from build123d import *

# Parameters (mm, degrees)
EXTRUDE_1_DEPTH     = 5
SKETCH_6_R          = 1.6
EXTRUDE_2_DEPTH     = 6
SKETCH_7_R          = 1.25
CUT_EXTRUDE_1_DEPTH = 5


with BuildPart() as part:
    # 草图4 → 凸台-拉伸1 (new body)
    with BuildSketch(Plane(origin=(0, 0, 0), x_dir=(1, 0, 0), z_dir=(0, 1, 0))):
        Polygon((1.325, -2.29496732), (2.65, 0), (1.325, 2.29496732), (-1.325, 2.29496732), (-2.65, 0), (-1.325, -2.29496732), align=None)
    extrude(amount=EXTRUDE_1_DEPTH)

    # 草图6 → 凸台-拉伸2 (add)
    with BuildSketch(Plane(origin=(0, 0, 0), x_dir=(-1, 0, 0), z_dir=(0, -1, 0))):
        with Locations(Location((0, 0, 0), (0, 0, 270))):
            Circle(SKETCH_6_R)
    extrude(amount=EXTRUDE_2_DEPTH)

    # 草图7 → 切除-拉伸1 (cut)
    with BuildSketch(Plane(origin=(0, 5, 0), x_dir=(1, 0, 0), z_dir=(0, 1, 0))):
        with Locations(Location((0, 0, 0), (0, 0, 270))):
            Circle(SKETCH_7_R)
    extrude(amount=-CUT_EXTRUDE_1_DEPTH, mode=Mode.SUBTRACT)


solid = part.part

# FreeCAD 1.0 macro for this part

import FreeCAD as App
import Part
import Sketcher
from FreeCAD import Vector
Q = App.Units.Quantity


def add_polygon(sketch, points):
    """Adds a closed chain of lines whose ends are joined by coincident constraints."""
    first, n = sketch.GeometryCount, len(points)
    for a, b in zip(points, points[1:] + points[:1]):
        sketch.addGeometry(Part.LineSegment(App.Vector(*a, 0), App.Vector(*b, 0)), False)
    for i in range(n):
        sketch.addConstraint(Sketcher.Constraint("Coincident", first + i, 2, first + (i + 1) % n, 1))

doc = App.newDocument("Part")
body = doc.addObject("PartDesign::Body", "Body")

sketch1 = body.newObject("Sketcher::SketchObject", "Sketch")
sketch1.AttachmentSupport = (doc.getObject("XZ_Plane"), [""])
sketch1.MapMode = "FlatFace"
add_polygon(sketch1, [(1.3, 2.3), (2.6, 0), (1.3, -2.3), (-1.3, -2.3), (-2.6, 0), (-1.3, 2.3)])
sketch1.addConstraint(Sketcher.Constraint("Horizontal", 2))
sketch1.addConstraint(Sketcher.Constraint("Horizontal", 5))
sketch1.addConstraint(Sketcher.Constraint("Symmetric", 0, 2, 3, 2, -1, 1))
sketch1.addConstraint(Sketcher.Constraint("Symmetric", 1, 2, 4, 2, -1, 1))
sketch1.addConstraint(Sketcher.Constraint("PointOnObject", 0, 2, -1))
sketch1.addConstraint(Sketcher.Constraint("Parallel", 0, 3))
sketch1.addConstraint(Sketcher.Constraint("Vertical", 2, 2, 4, 2))
sketch1.addConstraint(Sketcher.Constraint("Angle", 0, Q("-60 deg")))
sketch1.addConstraint(Sketcher.Constraint("DistanceX", 2, 2, 2, 1, 2.65))
sketch1.addConstraint(Sketcher.Constraint("DistanceX", 3, 2, 0, 2, 5.3))
pad1 = body.newObject("PartDesign::Pad", "Pad")
pad1.Profile = sketch1
pad1.Length = 5
pad1.Reversed = True

sketch2 = body.newObject("Sketcher::SketchObject", "Sketch001")
sketch2.AttachmentSupport = (doc.getObject("XZ_Plane"), [""])
sketch2.MapMode = "FlatFace"
sketch2.addGeometry(Part.Circle(Vector(0, 0, 0), Vector(0, 0, 1), 1.6), False)
sketch2.addConstraint(Sketcher.Constraint("Coincident", 0, 3, -1, 1))
sketch2.addConstraint(Sketcher.Constraint("Diameter", 0, 3.2))
pad2 = body.newObject("PartDesign::Pad", "Pad001")
pad2.Profile = sketch2
pad2.Length = 6

sketch3 = body.newObject("Sketcher::SketchObject", "Sketch002")
sketch3.AttachmentSupport = (doc.getObject("XZ_Plane"), [""])
sketch3.MapMode = "FlatFace"
sketch3.AttachmentOffset = App.Placement(Vector(0, 0, -5), App.Rotation())
sketch3.addGeometry(Part.Circle(Vector(0, 0, 0), Vector(0, 0, 1), 1.2), False)
sketch3.addConstraint(Sketcher.Constraint("Coincident", 0, 3, -1, 1))
sketch3.addConstraint(Sketcher.Constraint("Diameter", 0, 2.5))
pocket1 = body.newObject("PartDesign::Pocket", "Pocket")
pocket1.Profile = sketch3
pocket1.Length = 5
pocket1.Reversed = True

doc.recompute()
